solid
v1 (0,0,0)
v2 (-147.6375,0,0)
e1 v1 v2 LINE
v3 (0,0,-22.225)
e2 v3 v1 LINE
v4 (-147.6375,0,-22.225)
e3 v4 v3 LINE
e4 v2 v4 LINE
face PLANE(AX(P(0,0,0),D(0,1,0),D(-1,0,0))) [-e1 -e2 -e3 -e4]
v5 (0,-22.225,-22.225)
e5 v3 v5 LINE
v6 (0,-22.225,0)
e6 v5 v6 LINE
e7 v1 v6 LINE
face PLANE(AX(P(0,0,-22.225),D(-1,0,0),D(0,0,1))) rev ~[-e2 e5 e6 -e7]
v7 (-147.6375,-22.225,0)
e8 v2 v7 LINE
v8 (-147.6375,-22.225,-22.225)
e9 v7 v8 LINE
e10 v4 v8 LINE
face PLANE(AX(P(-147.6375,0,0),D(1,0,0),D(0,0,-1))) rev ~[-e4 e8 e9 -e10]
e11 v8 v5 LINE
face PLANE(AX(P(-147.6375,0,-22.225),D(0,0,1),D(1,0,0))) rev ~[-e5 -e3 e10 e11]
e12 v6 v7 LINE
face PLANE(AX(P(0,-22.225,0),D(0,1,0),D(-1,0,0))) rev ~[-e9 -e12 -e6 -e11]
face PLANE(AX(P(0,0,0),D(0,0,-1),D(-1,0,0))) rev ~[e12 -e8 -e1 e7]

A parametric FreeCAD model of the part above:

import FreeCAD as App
import Part
import Sketcher

V = App.Vector
Q = App.Units.Quantity


def add_polygon(sketch, points):
    """Adds a closed chain of lines whose ends are joined by coincident constraints."""
    first, n = sketch.GeometryCount, len(points)
    for a, b in zip(points, points[1:] + points[:1]):
        sketch.addGeometry(Part.LineSegment(App.Vector(*a, 0), App.Vector(*b, 0)), False)
    for i in range(n):
        sketch.addConstraint(Sketcher.Constraint("Coincident", first + i, 2, first + (i + 1) % n, 1))

doc = App.newDocument("Part")
body = doc.addObject("PartDesign::Body", "Body")

# Sketch on XZ plane
sketch1 = body.newObject("Sketcher::SketchObject", "Sketch")
sketch1.AttachmentSupport = (doc.getObject("XZ_Plane"), [""])
sketch1.MapMode = "FlatFace"
add_polygon(sketch1, [(-148, 0), (0, 0), (0, -22), (-148, -22)])  # lines 0-3
sketch1.addConstraint([
    Sketcher.Constraint("Horizontal", 0),
    Sketcher.Constraint("Vertical", 1),
    Sketcher.Constraint("Horizontal", 2),
    Sketcher.Constraint("Vertical", 3),
    Sketcher.Constraint("Coincident", 0, 2, -1, 1),
    Sketcher.Constraint("DistanceX", 0, 1, 0, 2, Q("5.8125 in")),
    Sketcher.Constraint("DistanceY", 1, 2, 1, 1, Q("0.875 in")),
])
pad1 = body.newObject("PartDesign::Pad", "Pad")
pad1.Profile = sketch1
pad1.Length = Q("0.875 in")

doc.recompute()
